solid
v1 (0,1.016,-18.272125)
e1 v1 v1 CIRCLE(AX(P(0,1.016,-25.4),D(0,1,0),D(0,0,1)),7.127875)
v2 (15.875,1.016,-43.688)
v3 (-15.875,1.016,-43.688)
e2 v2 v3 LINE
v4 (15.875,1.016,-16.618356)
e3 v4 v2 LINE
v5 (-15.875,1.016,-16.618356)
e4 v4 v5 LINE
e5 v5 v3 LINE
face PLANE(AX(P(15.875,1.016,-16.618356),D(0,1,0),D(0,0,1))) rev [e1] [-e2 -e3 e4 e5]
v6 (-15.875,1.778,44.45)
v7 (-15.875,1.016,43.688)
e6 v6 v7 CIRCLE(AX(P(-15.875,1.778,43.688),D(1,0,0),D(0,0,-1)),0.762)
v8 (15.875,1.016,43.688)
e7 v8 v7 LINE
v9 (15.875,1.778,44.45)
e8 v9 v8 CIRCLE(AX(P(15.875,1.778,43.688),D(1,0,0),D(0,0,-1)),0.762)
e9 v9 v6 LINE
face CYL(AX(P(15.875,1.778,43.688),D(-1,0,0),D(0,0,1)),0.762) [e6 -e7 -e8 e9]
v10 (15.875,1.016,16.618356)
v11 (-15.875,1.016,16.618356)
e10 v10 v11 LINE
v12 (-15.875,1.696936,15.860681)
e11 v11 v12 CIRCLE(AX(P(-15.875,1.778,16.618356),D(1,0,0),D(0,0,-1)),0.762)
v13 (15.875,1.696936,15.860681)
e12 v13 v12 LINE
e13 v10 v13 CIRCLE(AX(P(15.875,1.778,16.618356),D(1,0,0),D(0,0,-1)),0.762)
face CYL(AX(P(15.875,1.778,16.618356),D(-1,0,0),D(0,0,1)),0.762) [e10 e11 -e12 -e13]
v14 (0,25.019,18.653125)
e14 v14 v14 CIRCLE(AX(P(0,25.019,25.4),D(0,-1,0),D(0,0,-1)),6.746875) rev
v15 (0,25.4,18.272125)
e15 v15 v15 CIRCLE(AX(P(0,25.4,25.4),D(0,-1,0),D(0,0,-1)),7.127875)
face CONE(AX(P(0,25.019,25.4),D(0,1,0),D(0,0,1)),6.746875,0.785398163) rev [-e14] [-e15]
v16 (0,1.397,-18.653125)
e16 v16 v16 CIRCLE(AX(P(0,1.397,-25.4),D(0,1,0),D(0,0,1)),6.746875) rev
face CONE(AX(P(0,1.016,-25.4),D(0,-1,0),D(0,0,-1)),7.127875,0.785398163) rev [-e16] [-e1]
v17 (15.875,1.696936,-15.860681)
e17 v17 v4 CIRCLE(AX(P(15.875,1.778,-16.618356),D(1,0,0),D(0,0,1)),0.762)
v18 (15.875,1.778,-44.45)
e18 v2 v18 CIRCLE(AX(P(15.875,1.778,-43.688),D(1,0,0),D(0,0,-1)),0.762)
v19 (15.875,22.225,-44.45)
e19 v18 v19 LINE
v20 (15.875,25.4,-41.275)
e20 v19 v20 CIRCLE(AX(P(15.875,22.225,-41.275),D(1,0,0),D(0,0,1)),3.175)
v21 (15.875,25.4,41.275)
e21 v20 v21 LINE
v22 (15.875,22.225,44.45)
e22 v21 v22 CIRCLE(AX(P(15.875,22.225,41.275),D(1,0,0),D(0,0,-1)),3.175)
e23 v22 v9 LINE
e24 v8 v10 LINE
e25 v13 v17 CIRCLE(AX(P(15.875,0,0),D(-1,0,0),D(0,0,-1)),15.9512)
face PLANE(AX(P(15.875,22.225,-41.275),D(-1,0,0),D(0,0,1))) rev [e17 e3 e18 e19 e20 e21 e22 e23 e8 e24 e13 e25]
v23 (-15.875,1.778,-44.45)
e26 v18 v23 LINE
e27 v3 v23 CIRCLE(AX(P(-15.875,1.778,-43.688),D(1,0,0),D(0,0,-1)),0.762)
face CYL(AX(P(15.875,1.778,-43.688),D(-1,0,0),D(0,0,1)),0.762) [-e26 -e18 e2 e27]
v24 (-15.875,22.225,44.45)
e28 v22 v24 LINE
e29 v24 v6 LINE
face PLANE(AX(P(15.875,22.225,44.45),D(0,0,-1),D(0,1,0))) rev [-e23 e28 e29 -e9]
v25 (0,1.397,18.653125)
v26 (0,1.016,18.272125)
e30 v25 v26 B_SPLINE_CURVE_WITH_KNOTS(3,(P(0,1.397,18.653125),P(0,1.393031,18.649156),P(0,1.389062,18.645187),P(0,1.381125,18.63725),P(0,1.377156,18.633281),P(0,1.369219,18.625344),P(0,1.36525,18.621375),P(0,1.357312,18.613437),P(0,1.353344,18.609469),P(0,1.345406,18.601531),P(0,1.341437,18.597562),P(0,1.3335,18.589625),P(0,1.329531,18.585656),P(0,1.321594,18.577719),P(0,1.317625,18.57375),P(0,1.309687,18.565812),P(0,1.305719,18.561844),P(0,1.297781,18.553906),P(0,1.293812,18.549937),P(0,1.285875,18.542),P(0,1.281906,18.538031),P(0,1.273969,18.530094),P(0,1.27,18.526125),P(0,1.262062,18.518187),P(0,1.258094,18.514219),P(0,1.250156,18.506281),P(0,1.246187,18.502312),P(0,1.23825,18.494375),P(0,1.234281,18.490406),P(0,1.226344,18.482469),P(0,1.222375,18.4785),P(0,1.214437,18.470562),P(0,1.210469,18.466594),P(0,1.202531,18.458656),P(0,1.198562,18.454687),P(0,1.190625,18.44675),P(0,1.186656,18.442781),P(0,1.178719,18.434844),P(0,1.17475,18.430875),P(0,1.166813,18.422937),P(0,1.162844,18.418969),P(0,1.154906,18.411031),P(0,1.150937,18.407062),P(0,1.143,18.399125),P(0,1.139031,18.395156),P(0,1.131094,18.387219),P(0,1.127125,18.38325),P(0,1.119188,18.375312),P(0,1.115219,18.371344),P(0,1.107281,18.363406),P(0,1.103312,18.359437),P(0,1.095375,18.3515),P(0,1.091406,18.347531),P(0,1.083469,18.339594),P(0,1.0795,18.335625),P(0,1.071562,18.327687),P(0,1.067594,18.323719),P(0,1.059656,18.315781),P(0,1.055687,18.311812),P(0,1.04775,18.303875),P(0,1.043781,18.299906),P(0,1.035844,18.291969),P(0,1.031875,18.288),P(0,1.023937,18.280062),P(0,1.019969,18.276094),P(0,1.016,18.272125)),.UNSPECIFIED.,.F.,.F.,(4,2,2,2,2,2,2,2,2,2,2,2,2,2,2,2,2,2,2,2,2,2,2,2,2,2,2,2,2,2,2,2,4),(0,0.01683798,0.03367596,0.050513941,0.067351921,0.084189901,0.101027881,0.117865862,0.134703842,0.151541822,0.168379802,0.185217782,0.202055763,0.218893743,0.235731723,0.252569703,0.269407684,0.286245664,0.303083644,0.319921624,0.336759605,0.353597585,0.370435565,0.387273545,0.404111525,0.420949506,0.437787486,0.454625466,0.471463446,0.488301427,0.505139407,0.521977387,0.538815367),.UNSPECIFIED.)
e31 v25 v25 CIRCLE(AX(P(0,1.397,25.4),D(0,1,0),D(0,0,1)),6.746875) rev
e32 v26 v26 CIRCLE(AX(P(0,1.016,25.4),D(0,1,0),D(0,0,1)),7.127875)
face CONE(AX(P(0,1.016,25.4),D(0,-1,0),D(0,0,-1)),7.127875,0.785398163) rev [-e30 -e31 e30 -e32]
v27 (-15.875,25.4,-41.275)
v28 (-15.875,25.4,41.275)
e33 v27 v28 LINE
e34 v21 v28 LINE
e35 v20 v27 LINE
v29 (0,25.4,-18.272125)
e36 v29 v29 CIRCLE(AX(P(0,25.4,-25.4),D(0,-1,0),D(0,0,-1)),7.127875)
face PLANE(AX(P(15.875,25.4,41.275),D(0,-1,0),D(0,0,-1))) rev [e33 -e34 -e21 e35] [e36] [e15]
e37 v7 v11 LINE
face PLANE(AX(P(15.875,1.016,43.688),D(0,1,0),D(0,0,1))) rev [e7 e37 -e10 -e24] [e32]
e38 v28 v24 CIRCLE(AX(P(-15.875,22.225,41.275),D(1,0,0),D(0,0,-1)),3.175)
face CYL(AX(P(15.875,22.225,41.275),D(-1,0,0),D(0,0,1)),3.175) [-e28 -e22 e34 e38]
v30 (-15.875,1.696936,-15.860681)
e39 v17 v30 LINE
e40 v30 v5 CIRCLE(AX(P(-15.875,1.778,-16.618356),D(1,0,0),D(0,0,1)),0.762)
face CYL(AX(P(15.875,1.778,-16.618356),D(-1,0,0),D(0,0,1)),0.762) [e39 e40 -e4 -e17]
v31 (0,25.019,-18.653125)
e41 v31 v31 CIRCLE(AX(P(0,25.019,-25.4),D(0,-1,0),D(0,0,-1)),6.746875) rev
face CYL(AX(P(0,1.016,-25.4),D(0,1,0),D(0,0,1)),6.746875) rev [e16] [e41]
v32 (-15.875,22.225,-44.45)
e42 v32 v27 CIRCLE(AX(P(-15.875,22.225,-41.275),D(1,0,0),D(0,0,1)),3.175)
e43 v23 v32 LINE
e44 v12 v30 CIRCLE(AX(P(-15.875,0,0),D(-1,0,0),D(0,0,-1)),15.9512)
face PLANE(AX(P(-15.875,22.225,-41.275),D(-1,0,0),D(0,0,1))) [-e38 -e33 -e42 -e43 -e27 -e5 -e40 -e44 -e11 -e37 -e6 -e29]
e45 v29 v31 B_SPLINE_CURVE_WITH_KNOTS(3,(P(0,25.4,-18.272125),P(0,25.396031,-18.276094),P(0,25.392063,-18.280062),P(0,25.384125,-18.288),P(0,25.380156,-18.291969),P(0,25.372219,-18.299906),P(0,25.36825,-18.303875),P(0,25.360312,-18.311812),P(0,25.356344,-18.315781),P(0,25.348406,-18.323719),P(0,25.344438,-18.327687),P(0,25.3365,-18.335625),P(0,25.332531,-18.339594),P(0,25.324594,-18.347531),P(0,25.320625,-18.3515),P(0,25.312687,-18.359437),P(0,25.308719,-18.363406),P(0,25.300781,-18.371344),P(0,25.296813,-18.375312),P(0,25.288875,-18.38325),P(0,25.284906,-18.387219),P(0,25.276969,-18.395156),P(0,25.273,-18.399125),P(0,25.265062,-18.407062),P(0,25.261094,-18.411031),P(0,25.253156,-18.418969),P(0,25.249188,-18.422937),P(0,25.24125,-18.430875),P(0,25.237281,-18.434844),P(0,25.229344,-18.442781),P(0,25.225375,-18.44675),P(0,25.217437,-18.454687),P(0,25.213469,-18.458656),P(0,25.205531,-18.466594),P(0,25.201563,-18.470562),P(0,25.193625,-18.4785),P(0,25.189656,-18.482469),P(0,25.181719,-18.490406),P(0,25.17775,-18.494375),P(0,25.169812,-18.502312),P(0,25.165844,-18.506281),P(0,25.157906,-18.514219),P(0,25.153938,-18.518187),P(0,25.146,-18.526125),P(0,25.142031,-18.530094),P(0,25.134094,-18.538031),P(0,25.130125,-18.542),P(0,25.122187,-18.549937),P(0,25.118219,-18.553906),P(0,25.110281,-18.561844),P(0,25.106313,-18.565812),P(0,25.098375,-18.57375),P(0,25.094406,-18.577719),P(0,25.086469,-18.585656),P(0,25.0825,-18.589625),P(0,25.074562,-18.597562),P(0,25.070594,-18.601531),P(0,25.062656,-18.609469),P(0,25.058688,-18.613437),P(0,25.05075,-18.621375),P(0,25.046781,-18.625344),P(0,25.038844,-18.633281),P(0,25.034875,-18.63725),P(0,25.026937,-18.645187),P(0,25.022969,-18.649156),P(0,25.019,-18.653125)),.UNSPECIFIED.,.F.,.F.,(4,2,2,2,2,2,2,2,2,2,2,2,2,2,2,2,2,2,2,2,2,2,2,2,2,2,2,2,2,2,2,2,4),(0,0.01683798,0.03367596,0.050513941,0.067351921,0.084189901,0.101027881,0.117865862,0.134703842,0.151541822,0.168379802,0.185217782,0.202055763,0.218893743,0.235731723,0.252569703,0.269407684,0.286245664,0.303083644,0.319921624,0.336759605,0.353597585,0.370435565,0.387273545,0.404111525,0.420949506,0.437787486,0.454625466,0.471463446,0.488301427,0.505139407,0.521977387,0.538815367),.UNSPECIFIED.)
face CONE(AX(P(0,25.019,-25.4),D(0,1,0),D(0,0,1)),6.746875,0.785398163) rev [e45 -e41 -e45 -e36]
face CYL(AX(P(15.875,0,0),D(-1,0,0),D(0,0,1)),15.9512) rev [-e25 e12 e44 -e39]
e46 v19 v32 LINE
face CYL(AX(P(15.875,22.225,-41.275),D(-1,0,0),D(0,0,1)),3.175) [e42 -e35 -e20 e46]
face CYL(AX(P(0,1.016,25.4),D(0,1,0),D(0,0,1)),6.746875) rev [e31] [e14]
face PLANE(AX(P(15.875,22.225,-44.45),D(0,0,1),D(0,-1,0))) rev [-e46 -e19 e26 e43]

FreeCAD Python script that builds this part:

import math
import FreeCAD as App
import Part
import Sketcher
Q = App.Units.Quantity


def edges_at(feature, points):
    """Names of the edges that pass closest to the given points."""
    edges = feature.Shape.Edges
    near = lambda p: min(range(len(edges)), key=lambda i: edges[i].distToShape(Part.Vertex(*p))[0])
    return sorted({f"Edge{near(p) + 1}" for p in points})

doc = App.newDocument("Part")
body = doc.addObject("PartDesign::Body", "Body")

sketch1 = body.newObject("Sketcher::SketchObject", "Sketch")
sketch1.AttachmentSupport = (doc.getObject("YZ_Plane"), [""])
sketch1.MapMode = "FlatFace"
sketch1.addGeometry(Part.LineSegment(App.Vector(1, -16.6, 0), App.Vector(1, -43.7, 0)), False)
sketch1.addGeometry(Part.ArcOfCircle(Part.Circle(App.Vector(1.8, -43.7, 0), App.Vector(0, 0, 1), 0.8), math.radians(-180), math.radians(-90)), False)
sketch1.addGeometry(Part.LineSegment(App.Vector(1.8, -44.5, 0), App.Vector(22.2, -44.5, 0)), False)
sketch1.addGeometry(Part.ArcOfCircle(Part.Circle(App.Vector(22.2, -41.3, 0), App.Vector(0, 0, 1), 3.2), math.radians(-90), math.radians(0)), False)
sketch1.addGeometry(Part.LineSegment(App.Vector(25.4, -41.3, 0), App.Vector(25.4, 41.3, 0)), False)
sketch1.addGeometry(Part.ArcOfCircle(Part.Circle(App.Vector(22.2, 41.3, 0), App.Vector(0, 0, 1), 3.2), math.radians(0), math.radians(90)), False)
sketch1.addGeometry(Part.LineSegment(App.Vector(22.2, 44.5, 0), App.Vector(1.8, 44.5, 0)), False)
sketch1.addGeometry(Part.ArcOfCircle(Part.Circle(App.Vector(1.8, 43.7, 0), App.Vector(0, 0, 1), 0.8), math.radians(90), math.radians(180)), False)
sketch1.addGeometry(Part.LineSegment(App.Vector(1, 43.7, 0), App.Vector(1, 16.6, 0)), False)
sketch1.addGeometry(Part.ArcOfCircle(Part.Circle(App.Vector(1.8, 16.6, 0), App.Vector(0, 0, 1), 0.8), math.radians(180), math.radians(264)), False)
sketch1.addGeometry(Part.ArcOfCircle(Part.Circle(App.Vector(0, 0, 0), App.Vector(0, 0, 1), 16), math.radians(-84), math.radians(84)), False)
sketch1.addGeometry(Part.ArcOfCircle(Part.Circle(App.Vector(1.8, -16.6, 0), App.Vector(0, 0, 1), 0.8), math.radians(96), math.radians(180)), False)
sketch1.addConstraint(Sketcher.Constraint("Tangent", 0, 2, 1, 1))
sketch1.addConstraint(Sketcher.Constraint("Tangent", 1, 2, 2, 1))
sketch1.addConstraint(Sketcher.Constraint("Tangent", 2, 2, 3, 1))
sketch1.addConstraint(Sketcher.Constraint("Tangent", 3, 2, 4, 1))
sketch1.addConstraint(Sketcher.Constraint("Tangent", 4, 2, 5, 1))
sketch1.addConstraint(Sketcher.Constraint("Tangent", 5, 2, 6, 1))
sketch1.addConstraint(Sketcher.Constraint("Tangent", 6, 2, 7, 1))
sketch1.addConstraint(Sketcher.Constraint("Tangent", 7, 2, 8, 1))
sketch1.addConstraint(Sketcher.Constraint("Tangent", 8, 2, 9, 1))
sketch1.addConstraint(Sketcher.Constraint("Tangent", 9, 2, 10, 2))
sketch1.addConstraint(Sketcher.Constraint("Tangent", 10, 1, 11, 1))
sketch1.addConstraint(Sketcher.Constraint("Tangent", 11, 2, 0, 1))
sketch1.addConstraint(Sketcher.Constraint("Vertical", 0))
sketch1.addConstraint(Sketcher.Constraint("Horizontal", 2))
sketch1.addConstraint(Sketcher.Constraint("Vertical", 4))
sketch1.addConstraint(Sketcher.Constraint("Horizontal", 6))
sketch1.addConstraint(Sketcher.Constraint("Vertical", 8))
sketch1.addConstraint(Sketcher.Constraint("Coincident", 10, 3, -1, 1))
sketch1.addConstraint(Sketcher.Constraint("Equal", 3, 5))
sketch1.addConstraint(Sketcher.Constraint("Equal", 1, 7))
sketch1.addConstraint(Sketcher.Constraint("Equal", 7, 9))
sketch1.addConstraint(Sketcher.Constraint("Equal", 9, 11))
sketch1.addConstraint(Sketcher.Constraint("Symmetric", 1, 3, 7, 3, -1))
sketch1.addConstraint(Sketcher.Constraint("Radius", 1, Q("0.03 in")))
sketch1.addConstraint(Sketcher.Constraint("DistanceX", -1, 1, 3, 2, Q("1 in")))
sketch1.addConstraint(Sketcher.Constraint("Radius", 3, Q("0.125 in")))
sketch1.addConstraint(Sketcher.Constraint("Radius", 10, Q("0.628 in")))
sketch1.addConstraint(Sketcher.Constraint("DistanceY", 4, 1, 4, 2, Q("3.25 in")))
sketch1.addConstraint(Sketcher.Constraint("DistanceX", 2, 1, 2, 2, Q("0.805 in")))
pad1 = body.newObject("PartDesign::Pad", "Pad")
pad1.Profile = sketch1
pad1.Length = Q("1.25 in")
pad1.Midplane = True

sketch2 = body.newObject("Sketcher::SketchObject", "Sketch001")
sketch2.AttachmentSupport = (doc.getObject("XZ_Plane"), [""])
sketch2.MapMode = "FlatFace"
sketch2.AttachmentOffset = App.Placement(App.Vector(0, 0, -1 * 25.4), App.Rotation())
sketch2.addGeometry(Part.Circle(App.Vector(0, 25, 0), App.Vector(0, 0, 1), 7), False)
sketch2.addGeometry(Part.Circle(App.Vector(0, -25, 0), App.Vector(0, 0, 1), 7), False)
sketch2.addConstraint(Sketcher.Constraint("Equal", 0, 1))
sketch2.addConstraint(Sketcher.Constraint("Symmetric", 0, 3, 1, 3, -1, 1))
sketch2.addConstraint(Sketcher.Constraint("PointOnObject", 0, 3, -2))
sketch2.addConstraint(Sketcher.Constraint("Diameter", 0, Q("0.53125 in")))
sketch2.addConstraint(Sketcher.Constraint("DistanceY", -1, 1, 0, 3, Q("1 in")))
pocket1 = body.newObject("PartDesign::Pocket", "Pocket")
pocket1.Profile = sketch2
pocket1.Type = "ThroughAll"
pocket1.Reversed = True
doc.recompute()

chamfer = body.newObject("PartDesign::Chamfer", "Chamfer")
chamfer.Base = (pocket1, edges_at(pocket1, [
    (0, 1.016, 18.653),
    (0, 25.4, 18.653),
    (0, 1.016, -32.147),
    (0, 25.4, -32.147),
]))
chamfer.Size = Q("0.015 in")

doc.recompute()
